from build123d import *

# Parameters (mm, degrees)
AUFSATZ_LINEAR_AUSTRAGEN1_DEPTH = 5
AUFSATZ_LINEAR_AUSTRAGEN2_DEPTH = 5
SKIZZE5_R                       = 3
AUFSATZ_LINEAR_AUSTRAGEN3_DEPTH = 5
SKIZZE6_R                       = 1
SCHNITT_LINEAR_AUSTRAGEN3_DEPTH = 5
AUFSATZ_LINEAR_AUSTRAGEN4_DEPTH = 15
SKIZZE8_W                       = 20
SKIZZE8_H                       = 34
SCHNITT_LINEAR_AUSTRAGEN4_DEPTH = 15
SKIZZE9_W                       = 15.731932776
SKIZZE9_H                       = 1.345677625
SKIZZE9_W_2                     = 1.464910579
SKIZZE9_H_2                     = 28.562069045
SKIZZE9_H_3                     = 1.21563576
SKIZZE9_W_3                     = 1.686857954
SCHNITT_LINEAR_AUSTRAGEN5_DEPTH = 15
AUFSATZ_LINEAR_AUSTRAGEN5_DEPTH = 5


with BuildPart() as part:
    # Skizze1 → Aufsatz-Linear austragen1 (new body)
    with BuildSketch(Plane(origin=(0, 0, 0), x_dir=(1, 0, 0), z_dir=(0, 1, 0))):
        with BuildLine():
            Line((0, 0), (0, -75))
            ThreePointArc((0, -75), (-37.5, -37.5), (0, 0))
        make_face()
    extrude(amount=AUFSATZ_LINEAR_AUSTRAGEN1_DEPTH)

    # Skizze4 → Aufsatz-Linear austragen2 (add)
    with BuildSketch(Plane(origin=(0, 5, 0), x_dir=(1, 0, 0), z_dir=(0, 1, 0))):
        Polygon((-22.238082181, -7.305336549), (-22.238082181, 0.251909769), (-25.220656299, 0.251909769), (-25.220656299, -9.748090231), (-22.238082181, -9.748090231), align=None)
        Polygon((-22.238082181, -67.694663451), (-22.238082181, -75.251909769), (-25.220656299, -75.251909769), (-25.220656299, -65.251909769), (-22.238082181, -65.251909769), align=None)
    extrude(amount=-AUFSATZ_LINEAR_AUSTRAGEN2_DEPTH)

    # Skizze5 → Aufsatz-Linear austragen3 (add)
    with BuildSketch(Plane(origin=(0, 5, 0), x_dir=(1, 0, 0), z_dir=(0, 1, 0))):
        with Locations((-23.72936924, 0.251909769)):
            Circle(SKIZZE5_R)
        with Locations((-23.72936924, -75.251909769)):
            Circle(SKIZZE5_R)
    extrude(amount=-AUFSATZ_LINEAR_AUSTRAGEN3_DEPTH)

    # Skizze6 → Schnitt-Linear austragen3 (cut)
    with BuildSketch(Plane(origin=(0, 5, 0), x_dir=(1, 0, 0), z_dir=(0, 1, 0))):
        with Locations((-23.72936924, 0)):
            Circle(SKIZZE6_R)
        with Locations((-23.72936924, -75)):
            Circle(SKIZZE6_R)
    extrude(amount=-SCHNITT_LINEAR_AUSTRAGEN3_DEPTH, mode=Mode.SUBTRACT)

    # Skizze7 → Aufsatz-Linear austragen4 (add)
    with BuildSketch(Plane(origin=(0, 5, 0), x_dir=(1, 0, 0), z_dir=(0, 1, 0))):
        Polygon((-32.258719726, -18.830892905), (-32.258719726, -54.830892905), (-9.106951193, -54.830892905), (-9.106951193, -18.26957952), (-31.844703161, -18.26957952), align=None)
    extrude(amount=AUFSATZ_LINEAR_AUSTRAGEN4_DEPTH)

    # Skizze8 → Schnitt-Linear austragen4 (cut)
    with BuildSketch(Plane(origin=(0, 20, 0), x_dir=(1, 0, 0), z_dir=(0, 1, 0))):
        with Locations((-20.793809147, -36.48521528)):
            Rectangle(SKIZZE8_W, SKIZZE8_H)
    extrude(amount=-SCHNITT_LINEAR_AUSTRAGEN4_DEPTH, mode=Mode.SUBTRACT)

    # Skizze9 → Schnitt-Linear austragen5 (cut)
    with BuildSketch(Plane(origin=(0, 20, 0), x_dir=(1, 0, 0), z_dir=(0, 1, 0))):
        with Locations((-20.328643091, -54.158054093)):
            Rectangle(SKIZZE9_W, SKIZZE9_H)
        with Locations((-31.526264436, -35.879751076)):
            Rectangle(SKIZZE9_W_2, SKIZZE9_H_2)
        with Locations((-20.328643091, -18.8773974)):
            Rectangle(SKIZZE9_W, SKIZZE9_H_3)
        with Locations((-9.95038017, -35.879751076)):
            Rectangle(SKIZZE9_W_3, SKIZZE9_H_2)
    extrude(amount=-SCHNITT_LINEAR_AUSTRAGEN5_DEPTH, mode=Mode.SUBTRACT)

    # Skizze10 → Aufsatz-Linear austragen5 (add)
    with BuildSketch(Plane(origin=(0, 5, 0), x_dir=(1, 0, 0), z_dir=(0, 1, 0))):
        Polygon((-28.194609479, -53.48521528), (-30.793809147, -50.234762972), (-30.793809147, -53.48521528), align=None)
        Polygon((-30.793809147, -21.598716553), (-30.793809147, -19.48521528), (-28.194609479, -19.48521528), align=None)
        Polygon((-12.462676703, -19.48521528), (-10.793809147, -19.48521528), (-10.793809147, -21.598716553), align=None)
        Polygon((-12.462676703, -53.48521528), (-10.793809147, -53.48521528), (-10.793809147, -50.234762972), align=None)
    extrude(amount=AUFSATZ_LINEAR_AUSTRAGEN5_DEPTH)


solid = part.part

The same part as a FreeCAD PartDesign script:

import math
import FreeCAD as App
import Part
import Sketcher
Q = App.Units.Quantity


def add_polygon(sketch, points):
    """Adds a closed chain of lines whose ends are joined by coincident constraints."""
    first, n = sketch.GeometryCount, len(points)
    for a, b in zip(points, points[1:] + points[:1]):
        sketch.addGeometry(Part.LineSegment(App.Vector(*a, 0), App.Vector(*b, 0)), False)
    for i in range(n):
        sketch.addConstraint(Sketcher.Constraint("Coincident", first + i, 2, first + (i + 1) % n, 1))

doc = App.newDocument("Part")
body = doc.addObject("PartDesign::Body", "Body")

# Sketch on XZ plane
sketch1 = doc.addObject("Sketcher::SketchObject", "Sketch")
body.addObject(sketch1)
sketch1.AttachmentSupport = (doc.XZ_Plane, [""])
sketch1.MapMode = "FlatFace"
sketch1.addGeometry([
    Part.LineSegment(App.Vector(0, 75, 0), App.Vector(0, 0, 0)),
    Part.ArcOfCircle(Part.Circle(App.Vector(0, 38, 0), App.Vector(0, 0, 1), 38), math.radians(90), math.radians(270)),
], False)
sketch1.addConstraint([
    Sketcher.Constraint("Coincident", 0, 1, 1, 1),
    Sketcher.Constraint("Coincident", 1, 2, 0, 2),
    Sketcher.Constraint("Vertical", 0),
    Sketcher.Constraint("Coincident", 1, 2, -1, 1),
    Sketcher.Constraint("PointOnObject", 1, 3, -2),
    Sketcher.Constraint("Radius", 1, Q("37.5 mm")),
])
pad1 = doc.addObject("PartDesign::Pad", "Pad")
body.addObject(pad1)
pad1.Profile = sketch1
pad1.Length = 5
pad1.Reversed = True

# Sketch on XZ plane
sketch2 = doc.addObject("Sketcher::SketchObject", "Sketch001")
body.addObject(sketch2)
sketch2.AttachmentSupport = (doc.XZ_Plane, [""])
sketch2.MapMode = "FlatFace"
sketch2.AttachmentOffset = App.Placement(App.Vector(0, 0, -5), App.Rotation())
add_polygon(sketch2, [(-22.2, -0.3), (-25.2, -0.3), (-25.2, 9.7), (-22.2, 9.7)])  # lines 0-3
add_polygon(sketch2, [(-22.2, 75.3), (-22.2, 65.3), (-25.2, 65.3), (-25.2, 75.3)])  # lines 4-7
sketch2.addConstraint([
    Sketcher.Constraint("Horizontal", 0),
    Sketcher.Constraint("Vertical", 1),
    Sketcher.Constraint("Horizontal", 2),
    Sketcher.Constraint("Vertical", 3),
    Sketcher.Constraint("Vertical", 4),
    Sketcher.Constraint("Horizontal", 5),
    Sketcher.Constraint("Vertical", 6),
    Sketcher.Constraint("Horizontal", 7),
    Sketcher.Constraint("Vertical", 3, 2, 4, 2),
    Sketcher.Constraint("Vertical", 1, 2, 5, 2),
    Sketcher.Constraint("Equal", 3, 4),
    Sketcher.Constraint("DistanceY", 1, 1, 1, 2, Q("10 mm")),
    Sketcher.Constraint("DistanceX", 0, 2, 0, 1, Q("2.982574 mm")),
    Sketcher.Constraint("DistanceY", 0, 2, -1, 1, Q("0.25191 mm")),
    Sketcher.Constraint("DistanceY", -1, 1, 4, 2, Q("65.25191 mm")),
    Sketcher.Constraint("DistanceX", 0, 2, -1, 1, Q("25.220656 mm")),
])
pad2 = doc.addObject("PartDesign::Pad", "Pad001")
body.addObject(pad2)
pad2.Profile = sketch2
pad2.Length = 5

# Sketch on XZ plane
sketch3 = doc.addObject("Sketcher::SketchObject", "Sketch002")
body.addObject(sketch3)
sketch3.AttachmentSupport = (doc.XZ_Plane, [""])
sketch3.MapMode = "FlatFace"
sketch3.AttachmentOffset = App.Placement(App.Vector(0, 0, -5), App.Rotation())
sketch3.addGeometry([
    Part.Circle(App.Vector(-23.7, -0.3, 0), App.Vector(0, 0, 1), 3),
    Part.Circle(App.Vector(-23.7, 75.3, 0), App.Vector(0, 0, 1), 3),
], False)
sketch3.addConstraint([
    Sketcher.Constraint("Equal", 0, 1),
    Sketcher.Constraint("Vertical", 0, 3, 1, 3),
    Sketcher.Constraint("Diameter", 0, Q("6 mm")),
    Sketcher.Constraint("DistanceX", 0, 3, -1, 1, Q("23.729369 mm")),
    Sketcher.Constraint("DistanceY", 0, 3, -1, 1, Q("0.25191 mm")),
    Sketcher.Constraint("DistanceY", -1, 1, 1, 3, Q("75.25191 mm")),
])
pad3 = doc.addObject("PartDesign::Pad", "Pad002")
body.addObject(pad3)
pad3.Profile = sketch3
pad3.Length = 5

# Sketch on XZ plane
sketch4 = doc.addObject("Sketcher::SketchObject", "Sketch003")
body.addObject(sketch4)
sketch4.AttachmentSupport = (doc.XZ_Plane, [""])
sketch4.MapMode = "FlatFace"
sketch4.AttachmentOffset = App.Placement(App.Vector(0, 0, -5), App.Rotation())
sketch4.addGeometry([
    Part.Circle(App.Vector(-23.7, 0, 0), App.Vector(0, 0, 1), 1),
    Part.Circle(App.Vector(-23.7, 75, 0), App.Vector(0, 0, 1), 1),
], False)
sketch4.addConstraint([
    Sketcher.Constraint("Equal", 0, 1),
    Sketcher.Constraint("PointOnObject", 0, 3, -1),
    Sketcher.Constraint("Vertical", 0, 3, 1, 3),
    Sketcher.Constraint("Diameter", 0, Q("2 mm")),
    Sketcher.Constraint("DistanceY", -1, 1, 1, 3, Q("75 mm")),
    Sketcher.Constraint("DistanceX", 0, 3, -1, 1, Q("23.729369 mm")),
])
pocket1 = doc.addObject("PartDesign::Pocket", "Pocket")
body.addObject(pocket1)
pocket1.Profile = sketch4
pocket1.Length = 5
pocket1.Reversed = True

# Sketch on XZ plane
sketch5 = doc.addObject("Sketcher::SketchObject", "Sketch004")
body.addObject(sketch5)
sketch5.AttachmentSupport = (doc.XZ_Plane, [""])
sketch5.MapMode = "FlatFace"
sketch5.AttachmentOffset = App.Placement(App.Vector(0, 0, -5), App.Rotation())
add_polygon(sketch5, [(-32.3, 18.8), (-32.3, 54.8), (-9.1, 54.8), (-9.1, 18.3), (-31.8, 18.3)])  # lines 0-4
sketch5.addConstraint([
    Sketcher.Constraint("Vertical", 0),
    Sketcher.Constraint("Horizontal", 1),
    Sketcher.Constraint("Vertical", 2),
    Sketcher.Constraint("Horizontal", 3),
    Sketcher.Constraint("DistanceY", 0, 1, 0, 2, Q("36 mm")),
    Sketcher.Constraint("DistanceX", 1, 1, 1, 2, Q("23.151769 mm")),
    Sketcher.Constraint("DistanceX", 3, 2, 3, 1, Q("22.737752 mm")),
    Sketcher.Constraint("DistanceY", 2, 2, 2, 1, Q("36.561313 mm")),
    Sketcher.Constraint("DistanceX", 0, 2, -1, 1, Q("32.25872 mm")),
    Sketcher.Constraint("DistanceY", -1, 1, 2, 2, Q("18.26958 mm")),
])
pad4 = doc.addObject("PartDesign::Pad", "Pad003")
body.addObject(pad4)
pad4.Profile = sketch5
pad4.Length = 15
pad4.Reversed = True

# Sketch on XZ plane
sketch6 = doc.addObject("Sketcher::SketchObject", "Sketch005")
body.addObject(sketch6)
sketch6.AttachmentSupport = (doc.XZ_Plane, [""])
sketch6.MapMode = "FlatFace"
sketch6.AttachmentOffset = App.Placement(App.Vector(0, 0, -20), App.Rotation())
add_polygon(sketch6, [(-31, 19), (-31, 53), (-11, 53), (-11, 19)])  # lines 0-3
sketch6.addConstraint([
    Sketcher.Constraint("Vertical", 0),
    Sketcher.Constraint("Horizontal", 1),
    Sketcher.Constraint("Vertical", 2),
    Sketcher.Constraint("Horizontal", 3),
    Sketcher.Constraint("DistanceX", 1, 1, 1, 2, Q("20 mm")),
    Sketcher.Constraint("DistanceY", 0, 1, 0, 2, Q("34 mm")),
    Sketcher.Constraint("DistanceX", 0, 2, -1, 1, Q("30.793809 mm")),
    Sketcher.Constraint("DistanceY", -1, 1, 0, 2, Q("53.485215 mm")),
])
pocket2 = doc.addObject("PartDesign::Pocket", "Pocket001")
body.addObject(pocket2)
pocket2.Profile = sketch6
pocket2.Length = 15
pocket2.Reversed = True

# Sketch on XZ plane
sketch7 = doc.addObject("Sketcher::SketchObject", "Sketch006")
body.addObject(sketch7)
sketch7.AttachmentSupport = (doc.XZ_Plane, [""])
sketch7.MapMode = "FlatFace"
sketch7.AttachmentOffset = App.Placement(App.Vector(0, 0, -20), App.Rotation())
add_polygon(sketch7, [(-28.2, 53.5), (-28.2, 54.8), (-12.5, 54.8), (-12.5, 53.5)])  # lines 0-3
add_polygon(sketch7, [(-32.3, 21.6), (-32.3, 50.2), (-30.8, 50.2), (-30.8, 21.6)])  # lines 4-7
add_polygon(sketch7, [(-28.2, 18.3), (-28.2, 19.5), (-12.5, 19.5), (-12.5, 18.3)])  # lines 8-11
add_polygon(sketch7, [(-10.8, 21.6), (-10.8, 50.2), (-9.1, 50.2), (-9.1, 21.6)])  # lines 12-15
sketch7.addConstraint([
    Sketcher.Constraint("Vertical", 0),
    Sketcher.Constraint("Horizontal", 1),
    Sketcher.Constraint("Vertical", 2),
    Sketcher.Constraint("Horizontal", 3),
    Sketcher.Constraint("Vertical", 4),
    Sketcher.Constraint("Horizontal", 5),
    Sketcher.Constraint("Vertical", 6),
    Sketcher.Constraint("Horizontal", 7),
    Sketcher.Constraint("Vertical", 8),
    Sketcher.Constraint("Horizontal", 9),
    Sketcher.Constraint("Vertical", 10),
    Sketcher.Constraint("Horizontal", 11),
    Sketcher.Constraint("Vertical", 12),
    Sketcher.Constraint("Horizontal", 13),
    Sketcher.Constraint("Vertical", 14),
    Sketcher.Constraint("Horizontal", 15),
    Sketcher.Constraint("Horizontal", 5, 2, 12, 2),
    Sketcher.Constraint("Horizontal", 7, 2, 14, 2),
    Sketcher.Constraint("Vertical", 3, 2, 8, 2),
    Sketcher.Constraint("Vertical", 2, 2, 9, 2),
    Sketcher.Constraint("DistanceY", 8, 2, 3, 2, Q("34 mm")),
    Sketcher.Constraint("DistanceX", 5, 2, 12, 2, Q("20 mm")),
    Sketcher.Constraint("DistanceX", 5, 1, 5, 2, Q("1.464911 mm")),
    Sketcher.Constraint("DistanceY", 4, 1, 4, 2, Q("28.562069 mm")),
    Sketcher.Constraint("DistanceX", 5, 2, 3, 2, Q("2.5992 mm")),
    Sketcher.Constraint("DistanceY", 6, 2, 3, 2, Q("31.886499 mm")),
    Sketcher.Constraint("DistanceX", 1, 1, 1, 2, Q("15.731933 mm")),
    Sketcher.Constraint("DistanceX", 13, 1, 13, 2, Q("1.686858 mm")),
    Sketcher.Constraint("DistanceY", 0, 1, 0, 2, Q("1.345678 mm")),
    Sketcher.Constraint("DistanceY", 8, 1, 8, 2, Q("1.215636 mm")),
    Sketcher.Constraint("DistanceX", 0, 2, -1, 1, Q("28.194609 mm")),
    Sketcher.Constraint("DistanceY", -1, 1, 10, 2, Q("18.26958 mm")),
])
pocket3 = doc.addObject("PartDesign::Pocket", "Pocket002")
body.addObject(pocket3)
pocket3.Profile = sketch7
pocket3.Length = 15
pocket3.Reversed = True

# Sketch on XZ plane
sketch8 = doc.addObject("Sketcher::SketchObject", "Sketch007")
body.addObject(sketch8)
sketch8.AttachmentSupport = (doc.XZ_Plane, [""])
sketch8.MapMode = "FlatFace"
sketch8.AttachmentOffset = App.Placement(App.Vector(0, 0, -5), App.Rotation())
add_polygon(sketch8, [(-28.2, 53.5), (-30.8, 50.2), (-30.8, 53.5)])  # lines 0-2
add_polygon(sketch8, [(-30.8, 19.5), (-30.8, 21.6), (-28.2, 19.5)])  # lines 3-5
add_polygon(sketch8, [(-10.8, 19.5), (-12.5, 19.5), (-10.8, 21.6)])  # lines 6-8
add_polygon(sketch8, [(-12.5, 53.5), (-10.8, 53.5), (-10.8, 50.2)])  # lines 9-11
sketch8.addConstraint([
    Sketcher.Constraint("Vertical", 1),
    Sketcher.Constraint("Horizontal", 2),
    Sketcher.Constraint("Vertical", 3),
    Sketcher.Constraint("Horizontal", 5),
    Sketcher.Constraint("Horizontal", 6),
    Sketcher.Constraint("Vertical", 8),
    Sketcher.Constraint("Horizontal", 9),
    Sketcher.Constraint("Vertical", 10),
    Sketcher.Constraint("Horizontal", 5, 2, 6, 2),
    Sketcher.Constraint("Horizontal", 3, 2, 7, 2),
    Sketcher.Constraint("Horizontal", 2, 2, 9, 2),
    Sketcher.Constraint("Horizontal", 0, 2, 10, 2),
    Sketcher.Constraint("Vertical", 1, 2, 3, 2),
    Sketcher.Constraint("Vertical", 2, 2, 4, 2),
    Sketcher.Constraint("Vertical", 8, 2, 9, 2),
    Sketcher.Constraint("Vertical", 6, 2, 11, 2),
    Sketcher.Constraint("DistanceY", 4, 2, 2, 2, Q("34 mm")),
    Sketcher.Constraint("DistanceX", 3, 2, 7, 2, Q("20 mm")),
    Sketcher.Constraint("DistanceX", 2, 1, 2, 2, Q("2.5992 mm")),
    Sketcher.Constraint("DistanceY", 3, 1, 3, 2, Q("2.113501 mm")),
    Sketcher.Constraint("Distance", 11, Q("3.653842 mm")),
    Sketcher.Constraint("DistanceX", 6, 2, 6, 1, Q("1.668868 mm")),
    Sketcher.Constraint("DistanceX", 0, 2, -1, 1, Q("30.793809 mm")),
    Sketcher.Constraint("DistanceY", -1, 1, 0, 2, Q("50.234763 mm")),
])
pad5 = doc.addObject("PartDesign::Pad", "Pad004")
body.addObject(pad5)
pad5.Profile = sketch8
pad5.Length = 5
pad5.Reversed = True

doc.recompute()
